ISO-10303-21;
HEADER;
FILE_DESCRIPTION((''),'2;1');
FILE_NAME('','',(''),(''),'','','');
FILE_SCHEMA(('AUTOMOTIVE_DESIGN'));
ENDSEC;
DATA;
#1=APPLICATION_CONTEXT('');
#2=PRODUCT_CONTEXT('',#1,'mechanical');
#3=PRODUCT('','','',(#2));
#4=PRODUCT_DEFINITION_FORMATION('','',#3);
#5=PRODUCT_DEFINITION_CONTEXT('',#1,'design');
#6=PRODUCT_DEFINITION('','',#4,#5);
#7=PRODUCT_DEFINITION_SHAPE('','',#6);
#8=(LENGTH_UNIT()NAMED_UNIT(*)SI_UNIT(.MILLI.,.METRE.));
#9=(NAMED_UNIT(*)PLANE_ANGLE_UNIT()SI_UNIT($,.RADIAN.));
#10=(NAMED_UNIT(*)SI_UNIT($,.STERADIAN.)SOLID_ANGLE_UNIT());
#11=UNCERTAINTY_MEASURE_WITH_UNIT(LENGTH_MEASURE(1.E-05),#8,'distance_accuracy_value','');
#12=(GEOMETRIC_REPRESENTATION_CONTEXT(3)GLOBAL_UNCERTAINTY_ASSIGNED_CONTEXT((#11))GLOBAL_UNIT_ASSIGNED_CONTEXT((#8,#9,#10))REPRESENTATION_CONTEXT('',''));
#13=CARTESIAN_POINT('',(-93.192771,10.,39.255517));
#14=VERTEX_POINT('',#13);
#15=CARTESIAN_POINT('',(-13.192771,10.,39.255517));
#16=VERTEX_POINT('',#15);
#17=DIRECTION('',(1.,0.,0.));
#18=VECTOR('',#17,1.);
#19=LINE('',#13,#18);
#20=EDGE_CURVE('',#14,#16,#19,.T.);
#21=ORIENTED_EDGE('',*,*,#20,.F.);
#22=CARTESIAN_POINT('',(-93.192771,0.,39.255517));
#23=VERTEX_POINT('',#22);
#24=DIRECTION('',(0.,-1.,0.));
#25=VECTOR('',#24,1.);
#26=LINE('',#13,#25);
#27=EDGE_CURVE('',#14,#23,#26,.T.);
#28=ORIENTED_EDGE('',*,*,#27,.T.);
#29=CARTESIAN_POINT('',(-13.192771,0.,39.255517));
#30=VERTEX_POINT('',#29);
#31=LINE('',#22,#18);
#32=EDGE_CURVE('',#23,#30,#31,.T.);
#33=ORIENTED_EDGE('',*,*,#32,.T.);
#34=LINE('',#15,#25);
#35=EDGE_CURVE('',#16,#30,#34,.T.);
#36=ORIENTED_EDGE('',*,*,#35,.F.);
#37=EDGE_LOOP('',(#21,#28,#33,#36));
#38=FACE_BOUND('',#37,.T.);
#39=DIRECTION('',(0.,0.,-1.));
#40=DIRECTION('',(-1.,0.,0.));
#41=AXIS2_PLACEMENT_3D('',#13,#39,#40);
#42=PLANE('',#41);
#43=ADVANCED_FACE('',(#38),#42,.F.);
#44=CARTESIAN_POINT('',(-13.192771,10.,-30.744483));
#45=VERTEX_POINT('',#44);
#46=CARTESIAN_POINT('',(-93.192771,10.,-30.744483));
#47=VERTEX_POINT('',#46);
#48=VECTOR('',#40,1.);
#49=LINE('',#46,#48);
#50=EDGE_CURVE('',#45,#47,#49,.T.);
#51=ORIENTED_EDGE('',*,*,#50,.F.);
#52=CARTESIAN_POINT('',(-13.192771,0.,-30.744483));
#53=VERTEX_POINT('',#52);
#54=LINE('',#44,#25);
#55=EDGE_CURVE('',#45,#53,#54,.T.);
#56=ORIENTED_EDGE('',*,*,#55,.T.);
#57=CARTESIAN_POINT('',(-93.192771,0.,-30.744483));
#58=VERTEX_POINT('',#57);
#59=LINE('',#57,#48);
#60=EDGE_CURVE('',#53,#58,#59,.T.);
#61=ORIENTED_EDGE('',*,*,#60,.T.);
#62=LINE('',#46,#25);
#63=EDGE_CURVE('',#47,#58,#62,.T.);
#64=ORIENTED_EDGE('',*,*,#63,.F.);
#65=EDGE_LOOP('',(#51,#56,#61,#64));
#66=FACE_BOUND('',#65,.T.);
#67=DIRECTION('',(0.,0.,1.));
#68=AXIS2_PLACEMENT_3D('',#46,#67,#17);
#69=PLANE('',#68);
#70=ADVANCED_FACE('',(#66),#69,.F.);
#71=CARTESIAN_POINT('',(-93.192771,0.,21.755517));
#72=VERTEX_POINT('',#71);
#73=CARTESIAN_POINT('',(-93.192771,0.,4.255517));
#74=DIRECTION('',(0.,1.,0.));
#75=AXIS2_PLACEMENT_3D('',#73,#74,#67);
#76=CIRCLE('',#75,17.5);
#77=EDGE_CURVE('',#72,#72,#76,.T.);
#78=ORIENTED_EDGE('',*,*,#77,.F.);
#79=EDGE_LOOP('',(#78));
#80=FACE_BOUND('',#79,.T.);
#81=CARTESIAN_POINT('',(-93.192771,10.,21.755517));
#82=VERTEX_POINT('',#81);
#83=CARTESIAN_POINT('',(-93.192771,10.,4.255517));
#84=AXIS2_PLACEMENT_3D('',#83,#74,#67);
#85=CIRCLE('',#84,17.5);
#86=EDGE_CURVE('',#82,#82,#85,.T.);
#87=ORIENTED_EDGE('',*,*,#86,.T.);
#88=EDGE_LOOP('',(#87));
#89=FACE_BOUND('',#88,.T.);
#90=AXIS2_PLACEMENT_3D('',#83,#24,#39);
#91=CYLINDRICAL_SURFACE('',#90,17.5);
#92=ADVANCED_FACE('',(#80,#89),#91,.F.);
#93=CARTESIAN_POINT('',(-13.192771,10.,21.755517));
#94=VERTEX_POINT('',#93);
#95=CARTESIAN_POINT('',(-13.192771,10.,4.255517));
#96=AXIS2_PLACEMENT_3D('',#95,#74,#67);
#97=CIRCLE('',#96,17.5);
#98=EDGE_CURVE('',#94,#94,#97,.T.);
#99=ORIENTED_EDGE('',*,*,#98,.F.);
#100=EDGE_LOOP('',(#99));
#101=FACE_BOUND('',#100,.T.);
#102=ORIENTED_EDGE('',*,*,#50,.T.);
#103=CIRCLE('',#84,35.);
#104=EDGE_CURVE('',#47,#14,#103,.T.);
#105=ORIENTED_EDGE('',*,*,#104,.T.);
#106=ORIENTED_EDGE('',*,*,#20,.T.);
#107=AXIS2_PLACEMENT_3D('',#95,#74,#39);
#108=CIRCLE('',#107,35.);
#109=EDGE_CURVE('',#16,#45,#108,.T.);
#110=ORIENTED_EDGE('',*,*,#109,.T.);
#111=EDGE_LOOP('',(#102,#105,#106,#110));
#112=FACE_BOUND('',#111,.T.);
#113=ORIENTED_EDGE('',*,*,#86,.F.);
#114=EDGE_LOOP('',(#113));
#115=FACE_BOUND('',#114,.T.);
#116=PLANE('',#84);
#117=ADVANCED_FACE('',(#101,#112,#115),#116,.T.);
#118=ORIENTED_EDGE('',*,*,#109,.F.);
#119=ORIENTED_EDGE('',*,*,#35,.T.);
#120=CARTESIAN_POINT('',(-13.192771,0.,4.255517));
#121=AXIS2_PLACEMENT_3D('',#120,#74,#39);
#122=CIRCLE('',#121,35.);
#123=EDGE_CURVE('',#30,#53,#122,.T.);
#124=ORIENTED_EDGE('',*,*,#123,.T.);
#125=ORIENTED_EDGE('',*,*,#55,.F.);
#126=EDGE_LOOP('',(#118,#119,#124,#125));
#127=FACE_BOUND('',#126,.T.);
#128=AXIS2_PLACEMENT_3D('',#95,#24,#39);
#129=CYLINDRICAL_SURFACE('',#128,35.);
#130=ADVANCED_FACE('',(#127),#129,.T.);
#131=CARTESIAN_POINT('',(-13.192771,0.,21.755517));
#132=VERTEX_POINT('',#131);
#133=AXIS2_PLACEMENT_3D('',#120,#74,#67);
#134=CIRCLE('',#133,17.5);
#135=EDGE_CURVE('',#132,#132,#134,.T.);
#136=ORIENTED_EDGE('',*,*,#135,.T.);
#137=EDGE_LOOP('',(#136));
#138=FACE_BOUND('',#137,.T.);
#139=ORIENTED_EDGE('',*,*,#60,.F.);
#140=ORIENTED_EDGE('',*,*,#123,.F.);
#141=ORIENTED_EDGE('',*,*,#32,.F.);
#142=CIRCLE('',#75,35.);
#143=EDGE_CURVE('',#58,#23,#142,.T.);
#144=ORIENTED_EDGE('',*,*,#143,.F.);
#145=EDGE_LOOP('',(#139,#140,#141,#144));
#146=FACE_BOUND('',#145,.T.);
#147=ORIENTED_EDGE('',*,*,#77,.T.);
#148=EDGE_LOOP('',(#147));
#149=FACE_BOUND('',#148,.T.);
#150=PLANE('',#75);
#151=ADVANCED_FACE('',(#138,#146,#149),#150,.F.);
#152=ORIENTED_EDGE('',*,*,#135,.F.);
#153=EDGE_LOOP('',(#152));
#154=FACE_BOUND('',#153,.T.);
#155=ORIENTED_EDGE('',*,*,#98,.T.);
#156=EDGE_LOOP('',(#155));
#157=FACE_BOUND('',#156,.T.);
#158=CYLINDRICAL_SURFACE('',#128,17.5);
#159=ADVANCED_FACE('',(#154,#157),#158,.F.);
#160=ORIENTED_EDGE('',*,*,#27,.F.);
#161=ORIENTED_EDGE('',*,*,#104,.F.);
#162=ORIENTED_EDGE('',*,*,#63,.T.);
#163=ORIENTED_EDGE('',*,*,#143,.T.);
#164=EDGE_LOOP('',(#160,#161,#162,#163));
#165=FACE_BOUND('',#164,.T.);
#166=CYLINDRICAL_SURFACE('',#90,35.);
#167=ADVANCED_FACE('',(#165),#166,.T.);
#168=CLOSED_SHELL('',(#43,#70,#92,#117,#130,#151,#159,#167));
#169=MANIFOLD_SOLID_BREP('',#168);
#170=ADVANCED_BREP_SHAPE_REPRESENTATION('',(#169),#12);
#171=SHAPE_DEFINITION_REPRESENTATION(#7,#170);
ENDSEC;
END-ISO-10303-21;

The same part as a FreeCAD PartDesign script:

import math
import FreeCAD as App
import Part
import Sketcher

doc = App.newDocument("Part")
params = doc.addObject("Spreadsheet::Sheet", "Params")
for row, (alias, value) in enumerate([
    ("sketch1_diameter", "35 mm"),
    ("sketch1_radius", "35 mm"),
    ("sketch1_width", "80 mm"),
    ("pad1_length", "10 mm"),
], start=1):
    params.set(f"A{row}", alias)
    params.set(f"B{row}", "=" + value)
    params.setAlias(f"B{row}", alias)

body = doc.addObject("PartDesign::Body", "Body")

sketch1 = doc.addObject("Sketcher::SketchObject", "Sketch")
body.addObject(sketch1)
sketch1.AttachmentSupport = (doc.XZ_Plane, [""])
sketch1.MapMode = "FlatFace"
sketch1.addGeometry([
    Part.LineSegment(App.Vector(-13.192771, -30.744483, 0), App.Vector(-93.192771, -30.744483, 0)),
    Part.ArcOfCircle(Part.Circle(App.Vector(-93.192771, 4.255517, 0), App.Vector(0, 0, 1), 35), math.radians(90), math.radians(270)),
    Part.LineSegment(App.Vector(-93.192771, 39.255517, 0), App.Vector(-13.192771, 39.255517, 0)),
    Part.ArcOfCircle(Part.Circle(App.Vector(-13.192771, 4.255517, 0), App.Vector(0, 0, 1), 35), math.radians(-90), math.radians(90)),
    Part.Circle(App.Vector(-13.192771, 4.255517, 0), App.Vector(0, 0, 1), 17.5),
    Part.Circle(App.Vector(-93.192771, 4.255517, 0), App.Vector(0, 0, 1), 17.5),
], False)
sketch1.addConstraint([
    Sketcher.Constraint("Tangent", 0, 2, 1, 2),
    Sketcher.Constraint("Tangent", 1, 1, 2, 1),
    Sketcher.Constraint("Tangent", 2, 2, 3, 2),
    Sketcher.Constraint("Tangent", 3, 1, 0, 1),
    Sketcher.Constraint("Horizontal", 0),
    Sketcher.Constraint("Horizontal", 2),
    Sketcher.Constraint("Coincident", 4, 3, 3, 3),
    Sketcher.Constraint("Coincident", 5, 3, 1, 3),
    Sketcher.Constraint("Equal", 4, 5),
    Sketcher.Constraint("Diameter", 4, 35.0),
    Sketcher.Constraint("Radius", 1, 35.0),
    Sketcher.Constraint("DistanceX", 0, 2, 0, 1, 80.0),
    Sketcher.Constraint("DistanceX", 1, 3, -1, 1, 93.192771),
    Sketcher.Constraint("DistanceY", -1, 1, 1, 3, 4.255517),
])
sketch1.setExpression("Constraints[9]", "Params.sketch1_diameter")
sketch1.setExpression("Constraints[10]", "Params.sketch1_radius")
sketch1.setExpression("Constraints[11]", "Params.sketch1_width")
pad1 = doc.addObject("PartDesign::Pad", "Pad")
body.addObject(pad1)
pad1.Profile = sketch1
pad1.setExpression("Length", "Params.pad1_length")
pad1.Reversed = True

doc.recompute()
